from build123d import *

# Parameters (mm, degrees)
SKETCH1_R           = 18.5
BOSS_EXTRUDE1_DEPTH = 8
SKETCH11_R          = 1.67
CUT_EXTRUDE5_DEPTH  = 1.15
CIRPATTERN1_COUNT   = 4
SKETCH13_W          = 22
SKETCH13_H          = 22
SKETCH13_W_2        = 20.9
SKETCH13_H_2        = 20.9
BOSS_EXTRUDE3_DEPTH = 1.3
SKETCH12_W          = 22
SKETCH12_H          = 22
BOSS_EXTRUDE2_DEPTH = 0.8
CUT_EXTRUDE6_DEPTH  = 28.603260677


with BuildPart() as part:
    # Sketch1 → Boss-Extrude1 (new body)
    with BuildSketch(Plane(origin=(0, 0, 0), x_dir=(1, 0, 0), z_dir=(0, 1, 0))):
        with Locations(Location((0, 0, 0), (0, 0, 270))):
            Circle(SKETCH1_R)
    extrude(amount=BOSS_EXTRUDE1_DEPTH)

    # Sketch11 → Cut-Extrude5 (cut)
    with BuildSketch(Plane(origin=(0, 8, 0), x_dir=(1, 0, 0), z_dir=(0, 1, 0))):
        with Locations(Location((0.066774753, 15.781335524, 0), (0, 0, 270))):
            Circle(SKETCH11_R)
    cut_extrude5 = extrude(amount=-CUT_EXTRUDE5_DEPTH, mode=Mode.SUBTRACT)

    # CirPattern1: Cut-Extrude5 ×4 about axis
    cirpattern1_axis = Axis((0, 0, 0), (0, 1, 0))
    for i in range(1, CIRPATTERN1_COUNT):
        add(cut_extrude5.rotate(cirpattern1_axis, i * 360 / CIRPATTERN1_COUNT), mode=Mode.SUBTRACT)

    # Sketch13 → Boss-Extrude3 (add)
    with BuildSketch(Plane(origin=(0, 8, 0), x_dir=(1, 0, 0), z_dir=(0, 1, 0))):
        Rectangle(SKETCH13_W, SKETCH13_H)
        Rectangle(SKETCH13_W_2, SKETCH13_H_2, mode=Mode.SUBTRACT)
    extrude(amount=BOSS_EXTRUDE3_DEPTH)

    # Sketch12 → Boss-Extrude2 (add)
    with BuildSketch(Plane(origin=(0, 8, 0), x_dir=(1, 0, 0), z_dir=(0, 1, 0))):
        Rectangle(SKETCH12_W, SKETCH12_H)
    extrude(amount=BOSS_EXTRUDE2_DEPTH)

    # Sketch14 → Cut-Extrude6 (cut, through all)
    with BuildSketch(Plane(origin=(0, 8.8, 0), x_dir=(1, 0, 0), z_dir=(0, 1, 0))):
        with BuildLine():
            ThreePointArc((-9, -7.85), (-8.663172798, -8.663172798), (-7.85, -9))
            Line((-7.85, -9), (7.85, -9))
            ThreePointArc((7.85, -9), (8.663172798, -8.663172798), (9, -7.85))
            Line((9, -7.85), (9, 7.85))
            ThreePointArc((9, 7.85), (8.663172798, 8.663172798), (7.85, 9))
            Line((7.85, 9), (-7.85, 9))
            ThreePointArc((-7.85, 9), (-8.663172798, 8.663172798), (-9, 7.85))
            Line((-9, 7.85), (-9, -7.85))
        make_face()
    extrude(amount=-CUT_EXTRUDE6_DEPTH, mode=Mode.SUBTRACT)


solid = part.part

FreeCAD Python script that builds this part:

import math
import FreeCAD as App
import Part
import Sketcher

V = App.Vector
Q = App.Units.Quantity


def add_polygon(sketch, points):
    """Adds a closed chain of lines whose ends are joined by coincident constraints."""
    first, n = sketch.GeometryCount, len(points)
    for a, b in zip(points, points[1:] + points[:1]):
        sketch.addGeometry(Part.LineSegment(App.Vector(*a, 0), App.Vector(*b, 0)), False)
    for i in range(n):
        sketch.addConstraint(Sketcher.Constraint("Coincident", first + i, 2, first + (i + 1) % n, 1))

doc = App.newDocument("Part")
body = doc.addObject("PartDesign::Body", "Body")

# Sketch on XZ plane
sketch1 = body.newObject("Sketcher::SketchObject", "Sketch")
sketch1.AttachmentSupport = (doc.getObject("XZ_Plane"), [""])
sketch1.MapMode = "FlatFace"
sketch1.addGeometry(Part.Circle(V(0, 0, 0), V(0, 0, 1), 18), False)
sketch1.addConstraint([
    Sketcher.Constraint("Coincident", 0, 3, -1, 1),
    Sketcher.Constraint("Diameter", 0, Q("37 mm")),
])
pad1 = body.newObject("PartDesign::Pad", "Pad")
pad1.Profile = sketch1
pad1.Length = 8
pad1.Reversed = True

# Sketch on XZ plane
sketch2 = body.newObject("Sketcher::SketchObject", "Sketch001")
sketch2.AttachmentSupport = (doc.getObject("XZ_Plane"), [""])
sketch2.MapMode = "FlatFace"
sketch2.AttachmentOffset = App.Placement(V(0, 0, -8), App.Rotation())
sketch2.addGeometry(Part.Circle(V(0.1, -15.8, 0), V(0, 0, 1), 1.7), False)
sketch2.addConstraint([
    Sketcher.Constraint("Diameter", 0, Q("3.34 mm")),
    Sketcher.Constraint("DistanceX", -1, 1, 0, 3, Q("0.066775 mm")),
    Sketcher.Constraint("DistanceY", 0, 3, -1, 1, Q("15.781336 mm")),
])
pocket1 = body.newObject("PartDesign::Pocket", "Pocket")
pocket1.Profile = sketch2
pocket1.Length = 1.15
pocket1.Reversed = True
doc.recompute()

polarpattern = body.newObject("PartDesign::PolarPattern", "PolarPattern")
polarpattern.Originals = [pocket1]
polarpattern.Axis = (doc.getObject("Y_Axis"), [""])
polarpattern.Angle = 360
polarpattern.Occurrences = 4
body.Tip = polarpattern

# Sketch on XZ plane
sketch3 = body.newObject("Sketcher::SketchObject", "Sketch002")
sketch3.AttachmentSupport = (doc.getObject("XZ_Plane"), [""])
sketch3.MapMode = "FlatFace"
sketch3.AttachmentOffset = App.Placement(V(0, 0, -8), App.Rotation())
add_polygon(sketch3, [(-11, -11), (-11, 11), (11, 11), (11, -11)])  # lines 0-3
add_polygon(sketch3, [(10, 10), (-10, 10), (-10, -10), (10, -10)])  # lines 4-7
sketch3.addConstraint([
    Sketcher.Constraint("Vertical", 0),
    Sketcher.Constraint("Horizontal", 1),
    Sketcher.Constraint("Vertical", 2),
    Sketcher.Constraint("Horizontal", 3),
    Sketcher.Constraint("Horizontal", 4),
    Sketcher.Constraint("Vertical", 5),
    Sketcher.Constraint("Horizontal", 6),
    Sketcher.Constraint("Vertical", 7),
    Sketcher.Constraint("Symmetric", 0, 2, 2, 2, -1, 1),
    Sketcher.Constraint("Symmetric", 4, 2, 6, 2, -1, 1),
    Sketcher.Constraint("Equal", 3, 0),
    Sketcher.Constraint("Equal", 6, 5),
    Sketcher.Constraint("DistanceX", 1, 1, 1, 2, Q("22 mm")),
    Sketcher.Constraint("DistanceX", 4, 2, 4, 1, Q("20.9 mm")),
])
pad2 = body.newObject("PartDesign::Pad", "Pad001")
pad2.Profile = sketch3
pad2.Length = 1.3
pad2.Reversed = True

# Sketch on XZ plane
sketch4 = body.newObject("Sketcher::SketchObject", "Sketch003")
sketch4.AttachmentSupport = (doc.getObject("XZ_Plane"), [""])
sketch4.MapMode = "FlatFace"
sketch4.AttachmentOffset = App.Placement(V(0, 0, -8), App.Rotation())
add_polygon(sketch4, [(-11, -11), (-11, 11), (11, 11), (11, -11)])  # lines 0-3
sketch4.addConstraint([
    Sketcher.Constraint("Vertical", 0),
    Sketcher.Constraint("Horizontal", 1),
    Sketcher.Constraint("Vertical", 2),
    Sketcher.Constraint("Horizontal", 3),
    Sketcher.Constraint("Symmetric", 0, 2, 2, 2, -1, 1),
    Sketcher.Constraint("Equal", 3, 0),
    Sketcher.Constraint("DistanceX", 1, 1, 1, 2, Q("22 mm")),
])
pad3 = body.newObject("PartDesign::Pad", "Pad002")
pad3.Profile = sketch4
pad3.Length = 0.8
pad3.Reversed = True

# Sketch on XZ plane
sketch5 = body.newObject("Sketcher::SketchObject", "Sketch004")
sketch5.AttachmentSupport = (doc.getObject("XZ_Plane"), [""])
sketch5.MapMode = "FlatFace"
sketch5.AttachmentOffset = App.Placement(V(0, 0, -8.8), App.Rotation())
sketch5.addGeometry([
    Part.ArcOfCircle(Part.Circle(V(-7.8, 7.8, 0), V(0, 0, 1), 1.2), math.radians(90), math.radians(180)),  # 0
    Part.LineSegment(V(-7.8, 9, 0), V(7.8, 9, 0)),  # 1
    Part.ArcOfCircle(Part.Circle(V(7.8, 7.8, 0), V(0, 0, 1), 1.2), math.radians(0), math.radians(90)),  # 2
    Part.LineSegment(V(9, 7.8, 0), V(9, -7.8, 0)),  # 3
    Part.ArcOfCircle(Part.Circle(V(7.8, -7.8, 0), V(0, 0, 1), 1.2), math.radians(-90), math.radians(0)),  # 4
    Part.LineSegment(V(7.8, -9, 0), V(-7.8, -9, 0)),  # 5
    Part.ArcOfCircle(Part.Circle(V(-7.8, -7.8, 0), V(0, 0, 1), 1.2), math.radians(-180), math.radians(-90)),  # 6
    Part.LineSegment(V(-9, -7.8, 0), V(-9, 7.8, 0)),  # 7
], False)
sketch5.addConstraint([
    Sketcher.Constraint("Tangent", 0, 1, 1, 1),
    Sketcher.Constraint("Tangent", 1, 2, 2, 2),
    Sketcher.Constraint("Tangent", 2, 1, 3, 1),
    Sketcher.Constraint("Tangent", 3, 2, 4, 2),
    Sketcher.Constraint("Tangent", 4, 1, 5, 1),
    Sketcher.Constraint("Tangent", 5, 2, 6, 2),
    Sketcher.Constraint("Tangent", 6, 1, 7, 1),
    Sketcher.Constraint("Tangent", 7, 2, 0, 2),
    Sketcher.Constraint("Horizontal", 1),
    Sketcher.Constraint("Vertical", 3),
    Sketcher.Constraint("Horizontal", 5),
    Sketcher.Constraint("Vertical", 7),
    Sketcher.Constraint("Equal", 0, 2),
    Sketcher.Constraint("Equal", 2, 4),
    Sketcher.Constraint("Equal", 4, 6),
    Sketcher.Constraint("Symmetric", 0, 3, 4, 3, -1, 1),
    Sketcher.Constraint("Equal", 5, 3),
    Sketcher.Constraint("Radius", 0, Q("1.15 mm")),
    Sketcher.Constraint("DistanceX", 1, 1, 1, 2, Q("15.7 mm")),
])
pocket2 = body.newObject("PartDesign::Pocket", "Pocket001")
pocket2.Profile = sketch5
pocket2.Type = "ThroughAll"
pocket2.Reversed = True

doc.recompute()
